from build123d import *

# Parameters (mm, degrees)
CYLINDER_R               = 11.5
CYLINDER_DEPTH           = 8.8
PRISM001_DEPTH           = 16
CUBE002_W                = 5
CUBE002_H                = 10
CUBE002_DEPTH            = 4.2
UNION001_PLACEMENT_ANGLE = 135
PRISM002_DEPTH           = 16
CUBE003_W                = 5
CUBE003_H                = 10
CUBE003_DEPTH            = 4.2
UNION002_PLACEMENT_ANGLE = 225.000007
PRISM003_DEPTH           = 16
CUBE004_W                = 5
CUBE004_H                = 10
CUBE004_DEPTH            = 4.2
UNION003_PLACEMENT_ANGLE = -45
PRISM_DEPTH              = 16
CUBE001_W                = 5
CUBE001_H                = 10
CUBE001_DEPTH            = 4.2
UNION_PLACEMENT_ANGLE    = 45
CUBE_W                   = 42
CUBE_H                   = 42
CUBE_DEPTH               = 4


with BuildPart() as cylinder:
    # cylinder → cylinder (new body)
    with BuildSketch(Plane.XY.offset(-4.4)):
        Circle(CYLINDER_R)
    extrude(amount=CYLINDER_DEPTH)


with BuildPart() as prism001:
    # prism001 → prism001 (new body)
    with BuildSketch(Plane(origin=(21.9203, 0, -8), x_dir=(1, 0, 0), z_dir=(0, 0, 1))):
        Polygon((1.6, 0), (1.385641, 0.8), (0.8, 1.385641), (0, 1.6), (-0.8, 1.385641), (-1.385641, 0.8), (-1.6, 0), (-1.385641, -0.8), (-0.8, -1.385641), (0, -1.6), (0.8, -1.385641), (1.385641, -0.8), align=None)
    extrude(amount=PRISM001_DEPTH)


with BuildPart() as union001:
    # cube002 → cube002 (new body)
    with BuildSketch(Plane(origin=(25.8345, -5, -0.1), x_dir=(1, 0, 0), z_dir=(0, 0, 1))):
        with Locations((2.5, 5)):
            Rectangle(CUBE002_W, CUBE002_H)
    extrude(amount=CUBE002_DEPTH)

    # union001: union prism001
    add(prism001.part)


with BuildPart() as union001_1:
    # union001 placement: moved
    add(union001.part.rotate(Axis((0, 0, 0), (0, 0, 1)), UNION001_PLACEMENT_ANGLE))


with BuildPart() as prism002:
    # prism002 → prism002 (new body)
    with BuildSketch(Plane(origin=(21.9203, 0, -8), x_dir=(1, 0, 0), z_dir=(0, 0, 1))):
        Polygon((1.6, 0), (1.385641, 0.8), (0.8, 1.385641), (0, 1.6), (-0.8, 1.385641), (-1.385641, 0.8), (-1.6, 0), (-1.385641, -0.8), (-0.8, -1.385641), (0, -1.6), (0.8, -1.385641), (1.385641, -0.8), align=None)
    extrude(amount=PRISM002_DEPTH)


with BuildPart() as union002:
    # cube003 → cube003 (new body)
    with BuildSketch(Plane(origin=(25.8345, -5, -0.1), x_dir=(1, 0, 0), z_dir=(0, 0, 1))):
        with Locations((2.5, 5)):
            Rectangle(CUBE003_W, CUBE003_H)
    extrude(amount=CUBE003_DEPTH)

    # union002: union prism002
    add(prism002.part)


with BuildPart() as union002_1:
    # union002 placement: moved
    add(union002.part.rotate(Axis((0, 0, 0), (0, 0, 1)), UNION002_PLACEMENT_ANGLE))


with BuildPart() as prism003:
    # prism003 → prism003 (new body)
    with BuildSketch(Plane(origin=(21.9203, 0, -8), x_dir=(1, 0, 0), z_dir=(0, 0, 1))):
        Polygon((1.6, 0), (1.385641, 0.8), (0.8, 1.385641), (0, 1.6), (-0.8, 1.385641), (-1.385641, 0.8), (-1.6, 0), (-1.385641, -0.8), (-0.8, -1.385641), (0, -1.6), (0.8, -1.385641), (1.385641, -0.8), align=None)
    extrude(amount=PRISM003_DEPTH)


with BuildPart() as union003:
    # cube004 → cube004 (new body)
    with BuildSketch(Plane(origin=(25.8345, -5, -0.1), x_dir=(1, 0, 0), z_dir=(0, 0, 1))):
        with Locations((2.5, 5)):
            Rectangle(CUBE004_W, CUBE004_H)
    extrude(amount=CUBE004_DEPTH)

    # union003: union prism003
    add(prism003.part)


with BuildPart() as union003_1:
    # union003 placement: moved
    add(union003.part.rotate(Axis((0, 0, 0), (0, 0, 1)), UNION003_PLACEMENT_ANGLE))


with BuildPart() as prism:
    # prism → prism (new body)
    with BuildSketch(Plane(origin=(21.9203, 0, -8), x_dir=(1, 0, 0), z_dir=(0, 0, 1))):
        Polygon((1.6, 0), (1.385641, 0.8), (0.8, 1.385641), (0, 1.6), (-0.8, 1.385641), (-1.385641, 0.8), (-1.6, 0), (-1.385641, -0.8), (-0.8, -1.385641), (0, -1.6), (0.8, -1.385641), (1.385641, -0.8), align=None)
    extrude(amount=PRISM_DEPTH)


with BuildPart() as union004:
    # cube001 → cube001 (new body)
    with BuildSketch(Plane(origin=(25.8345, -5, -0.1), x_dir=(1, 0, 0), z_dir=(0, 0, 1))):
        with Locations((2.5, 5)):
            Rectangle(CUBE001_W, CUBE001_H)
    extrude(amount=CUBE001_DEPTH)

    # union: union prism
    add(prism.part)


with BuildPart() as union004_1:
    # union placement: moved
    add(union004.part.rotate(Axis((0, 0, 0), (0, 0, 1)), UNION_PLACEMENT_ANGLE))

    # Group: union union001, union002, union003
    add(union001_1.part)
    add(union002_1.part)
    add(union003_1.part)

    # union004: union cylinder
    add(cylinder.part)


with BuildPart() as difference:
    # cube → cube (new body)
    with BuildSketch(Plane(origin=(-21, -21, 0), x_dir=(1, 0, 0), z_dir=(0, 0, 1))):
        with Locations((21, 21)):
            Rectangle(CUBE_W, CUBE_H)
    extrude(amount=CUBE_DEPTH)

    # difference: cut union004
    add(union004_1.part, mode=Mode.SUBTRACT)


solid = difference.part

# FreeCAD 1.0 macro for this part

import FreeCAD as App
import Part
import Sketcher

V = App.Vector

doc = App.newDocument("Part")
body = doc.addObject("PartDesign::Body", "Body")

# Sketch on XY plane
sketch1 = body.newObject("Sketcher::SketchObject", "Sketch")
sketch1.AttachmentSupport = (doc.getObject("XY_Plane"), [""])
sketch1.MapMode = "FlatFace"
sketch1.AttachmentOffset = App.Placement(V(0, 0, -4.4), App.Rotation())
sketch1.addGeometry(Part.Circle(V(0, 0, 0), V(0, 0, 1), 12), False)
sketch1.addConstraint([
    Sketcher.Constraint("Coincident", 0, 3, -1, 1),
    Sketcher.Constraint("Diameter", 0, 23.0),
])
pad1 = body.newObject("PartDesign::Pad", "Pad")
pad1.Profile = sketch1
pad1.Length = 8.8
body2 = doc.addObject("PartDesign::Body", "Body001")

# Sketch on XY plane
sketch2 = body2.newObject("Sketcher::SketchObject", "Sketch001")
sketch2.AttachmentSupport = (doc.getObject("XY_Plane001"), [""])
sketch2.MapMode = "FlatFace"
sketch2.AttachmentOffset = App.Placement(V(0, 0, -8), App.Rotation())
sketch2.addGeometry([
    Part.LineSegment(V(23.5, 0, 0), V(23.3, 0.8, 0)),  # 0
    Part.LineSegment(V(23.3, 0.8, 0), V(22.7, 1.4, 0)),  # 1
    Part.LineSegment(V(22.7, 1.4, 0), V(21.9, 1.6, 0)),  # 2
    Part.LineSegment(V(21.9, 1.6, 0), V(21.1, 1.4, 0)),  # 3
    Part.LineSegment(V(21.1, 1.4, 0), V(20.5, 0.8, 0)),  # 4
    Part.LineSegment(V(20.5, 0.8, 0), V(20.3, 0, 0)),  # 5
    Part.LineSegment(V(20.3, 0, 0), V(20.5, -0.8, 0)),  # 6
    Part.LineSegment(V(20.5, -0.8, 0), V(21.1, -1.4, 0)),  # 7
    Part.LineSegment(V(21.1, -1.4, 0), V(21.9, -1.6, 0)),  # 8
    Part.LineSegment(V(21.9, -1.6, 0), V(22.7, -1.4, 0)),  # 9
    Part.LineSegment(V(22.7, -1.4, 0), V(23.3, -0.8, 0)),  # 10
    Part.LineSegment(V(23.3, -0.8, 0), V(23.5, 0, 0)),  # 11
], False)
sketch2.addConstraint([
    Sketcher.Constraint("Coincident", 0, 2, 1, 1),
    Sketcher.Constraint("Coincident", 1, 2, 2, 1),
    Sketcher.Constraint("Coincident", 2, 2, 3, 1),
    Sketcher.Constraint("Coincident", 3, 2, 4, 1),
    Sketcher.Constraint("Coincident", 4, 2, 5, 1),
    Sketcher.Constraint("Coincident", 5, 2, 6, 1),
    Sketcher.Constraint("Coincident", 6, 2, 7, 1),
    Sketcher.Constraint("Coincident", 7, 2, 8, 1),
    Sketcher.Constraint("Coincident", 8, 2, 9, 1),
    Sketcher.Constraint("Coincident", 9, 2, 10, 1),
    Sketcher.Constraint("Coincident", 10, 2, 11, 1),
    Sketcher.Constraint("Coincident", 11, 2, 0, 1),
    Sketcher.Constraint("Symmetric", 4, 2, 6, 2, -1),
    Sketcher.Constraint("Symmetric", 3, 2, 7, 2, -1),
    Sketcher.Constraint("Symmetric", 2, 2, 8, 2, -1),
    Sketcher.Constraint("Symmetric", 1, 2, 9, 2, -1),
    Sketcher.Constraint("Symmetric", 0, 2, 10, 2, -1),
    Sketcher.Constraint("PointOnObject", 5, 2, -1),
    Sketcher.Constraint("PointOnObject", 11, 2, -1),
    Sketcher.Constraint("Perpendicular", 0, 3),
    Sketcher.Constraint("Perpendicular", 1, 4),
    Sketcher.Constraint("Perpendicular", 2, 5),
    Sketcher.Constraint("Perpendicular", 3, 6),
    Sketcher.Constraint("Perpendicular", 4, 7),
    Sketcher.Constraint("Horizontal", 1, 2, 3, 2),
    Sketcher.Constraint("Horizontal", 0, 2, 4, 2),
    Sketcher.Constraint("Equal", 0, 1),
    Sketcher.Constraint("Equal", 1, 2),
    Sketcher.Constraint("DistanceY", -1, 1, 0, 2, 0.8),
    Sketcher.Constraint("DistanceY", -1, 1, 2, 2, 1.6),
    Sketcher.Constraint("DistanceX", -1, 1, 1, 2, 22.7203),
])
pad2 = body2.newObject("PartDesign::Pad", "Pad001")
pad2.Profile = sketch2
pad2.Length = 16
body3 = doc.addObject("PartDesign::Body", "Body002")
body3.AllowCompound = True

# Sketch on XY plane
sketch3 = body3.newObject("Sketcher::SketchObject", "Sketch002")
sketch3.AttachmentSupport = (doc.getObject("XY_Plane002"), [""])
sketch3.MapMode = "FlatFace"
sketch3.AttachmentOffset = App.Placement(V(0, 0, -0.1), App.Rotation())
sketch3.addGeometry([
    Part.LineSegment(V(26, 5, 0), V(26, -5, 0)),
    Part.LineSegment(V(26, -5, 0), V(31, -5, 0)),
    Part.LineSegment(V(31, -5, 0), V(31, 5, 0)),
    Part.LineSegment(V(31, 5, 0), V(26, 5, 0)),
], False)
sketch3.addConstraint([
    Sketcher.Constraint("Coincident", 0, 2, 1, 1),
    Sketcher.Constraint("Coincident", 1, 2, 2, 1),
    Sketcher.Constraint("Coincident", 2, 2, 3, 1),
    Sketcher.Constraint("Coincident", 3, 2, 0, 1),
    Sketcher.Constraint("Vertical", 0),
    Sketcher.Constraint("Horizontal", 1),
    Sketcher.Constraint("Vertical", 2),
    Sketcher.Constraint("Horizontal", 3),
    Sketcher.Constraint("DistanceX", 1, 1, 1, 2, 5.0),
    Sketcher.Constraint("DistanceY", 0, 2, 0, 1, 10.0),
    Sketcher.Constraint("DistanceY", 0, 2, -1, 1, 5.0),
    Sketcher.Constraint("DistanceX", -1, 1, 0, 2, 25.8345),
])
pad3 = body3.newObject("PartDesign::Pad", "Pad002")
pad3.Profile = sketch3
pad3.Length = 4.2
doc.recompute()

boolean = body3.newObject("PartDesign::Boolean", "Boolean")
boolean.Type = "Fuse"
boolean.addObjects([body2])
body4 = doc.addObject("PartDesign::Body", "Body003")
body4.AllowCompound = True
doc.recompute()

body3.Placement = App.Placement(V(0, 0, 0), App.Rotation(V(0, 0, 1), 135))
boolean2 = body4.newObject("PartDesign::Boolean", "Boolean001")
boolean2.Type = "Fuse"
boolean2.addObjects([body3])
body5 = doc.addObject("PartDesign::Body", "Body004")

# Sketch on XY plane
sketch4 = body5.newObject("Sketcher::SketchObject", "Sketch003")
sketch4.AttachmentSupport = (doc.getObject("XY_Plane004"), [""])
sketch4.MapMode = "FlatFace"
sketch4.AttachmentOffset = App.Placement(V(0, 0, -8), App.Rotation())
sketch4.addGeometry([
    Part.LineSegment(V(23.5, 0, 0), V(23.3, 0.8, 0)),  # 0
    Part.LineSegment(V(23.3, 0.8, 0), V(22.7, 1.4, 0)),  # 1
    Part.LineSegment(V(22.7, 1.4, 0), V(21.9, 1.6, 0)),  # 2
    Part.LineSegment(V(21.9, 1.6, 0), V(21.1, 1.4, 0)),  # 3
    Part.LineSegment(V(21.1, 1.4, 0), V(20.5, 0.8, 0)),  # 4
    Part.LineSegment(V(20.5, 0.8, 0), V(20.3, 0, 0)),  # 5
    Part.LineSegment(V(20.3, 0, 0), V(20.5, -0.8, 0)),  # 6
    Part.LineSegment(V(20.5, -0.8, 0), V(21.1, -1.4, 0)),  # 7
    Part.LineSegment(V(21.1, -1.4, 0), V(21.9, -1.6, 0)),  # 8
    Part.LineSegment(V(21.9, -1.6, 0), V(22.7, -1.4, 0)),  # 9
    Part.LineSegment(V(22.7, -1.4, 0), V(23.3, -0.8, 0)),  # 10
    Part.LineSegment(V(23.3, -0.8, 0), V(23.5, 0, 0)),  # 11
], False)
sketch4.addConstraint([
    Sketcher.Constraint("Coincident", 0, 2, 1, 1),
    Sketcher.Constraint("Coincident", 1, 2, 2, 1),
    Sketcher.Constraint("Coincident", 2, 2, 3, 1),
    Sketcher.Constraint("Coincident", 3, 2, 4, 1),
    Sketcher.Constraint("Coincident", 4, 2, 5, 1),
    Sketcher.Constraint("Coincident", 5, 2, 6, 1),
    Sketcher.Constraint("Coincident", 6, 2, 7, 1),
    Sketcher.Constraint("Coincident", 7, 2, 8, 1),
    Sketcher.Constraint("Coincident", 8, 2, 9, 1),
    Sketcher.Constraint("Coincident", 9, 2, 10, 1),
    Sketcher.Constraint("Coincident", 10, 2, 11, 1),
    Sketcher.Constraint("Coincident", 11, 2, 0, 1),
    Sketcher.Constraint("Symmetric", 4, 2, 6, 2, -1),
    Sketcher.Constraint("Symmetric", 3, 2, 7, 2, -1),
    Sketcher.Constraint("Symmetric", 2, 2, 8, 2, -1),
    Sketcher.Constraint("Symmetric", 1, 2, 9, 2, -1),
    Sketcher.Constraint("Symmetric", 0, 2, 10, 2, -1),
    Sketcher.Constraint("PointOnObject", 5, 2, -1),
    Sketcher.Constraint("PointOnObject", 11, 2, -1),
    Sketcher.Constraint("Perpendicular", 0, 3),
    Sketcher.Constraint("Perpendicular", 1, 4),
    Sketcher.Constraint("Perpendicular", 2, 5),
    Sketcher.Constraint("Perpendicular", 3, 6),
    Sketcher.Constraint("Perpendicular", 4, 7),
    Sketcher.Constraint("Horizontal", 1, 2, 3, 2),
    Sketcher.Constraint("Horizontal", 0, 2, 4, 2),
    Sketcher.Constraint("Equal", 0, 1),
    Sketcher.Constraint("Equal", 1, 2),
    Sketcher.Constraint("DistanceY", -1, 1, 0, 2, 0.8),
    Sketcher.Constraint("DistanceY", -1, 1, 2, 2, 1.6),
    Sketcher.Constraint("DistanceX", -1, 1, 1, 2, 22.7203),
])
pad4 = body5.newObject("PartDesign::Pad", "Pad003")
pad4.Profile = sketch4
pad4.Length = 16
body6 = doc.addObject("PartDesign::Body", "Body005")
body6.AllowCompound = True

# Sketch on XY plane
sketch5 = body6.newObject("Sketcher::SketchObject", "Sketch004")
sketch5.AttachmentSupport = (doc.getObject("XY_Plane005"), [""])
sketch5.MapMode = "FlatFace"
sketch5.AttachmentOffset = App.Placement(V(0, 0, -0.1), App.Rotation())
sketch5.addGeometry([
    Part.LineSegment(V(26, 5, 0), V(26, -5, 0)),
    Part.LineSegment(V(26, -5, 0), V(31, -5, 0)),
    Part.LineSegment(V(31, -5, 0), V(31, 5, 0)),
    Part.LineSegment(V(31, 5, 0), V(26, 5, 0)),
], False)
sketch5.addConstraint([
    Sketcher.Constraint("Coincident", 0, 2, 1, 1),
    Sketcher.Constraint("Coincident", 1, 2, 2, 1),
    Sketcher.Constraint("Coincident", 2, 2, 3, 1),
    Sketcher.Constraint("Coincident", 3, 2, 0, 1),
    Sketcher.Constraint("Vertical", 0),
    Sketcher.Constraint("Horizontal", 1),
    Sketcher.Constraint("Vertical", 2),
    Sketcher.Constraint("Horizontal", 3),
    Sketcher.Constraint("DistanceX", 1, 1, 1, 2, 5.0),
    Sketcher.Constraint("DistanceY", 0, 2, 0, 1, 10.0),
    Sketcher.Constraint("DistanceY", 0, 2, -1, 1, 5.0),
    Sketcher.Constraint("DistanceX", -1, 1, 0, 2, 25.8345),
])
pad5 = body6.newObject("PartDesign::Pad", "Pad004")
pad5.Profile = sketch5
pad5.Length = 4.2
doc.recompute()

boolean3 = body6.newObject("PartDesign::Boolean", "Boolean002")
boolean3.Type = "Fuse"
boolean3.addObjects([body5])
body7 = doc.addObject("PartDesign::Body", "Body006")
body7.AllowCompound = True
doc.recompute()

body6.Placement = App.Placement(V(0, 0, 0), App.Rotation(V(0, 0, 1), 225.000007))
boolean4 = body7.newObject("PartDesign::Boolean", "Boolean003")
boolean4.Type = "Fuse"
boolean4.addObjects([body6])
body8 = doc.addObject("PartDesign::Body", "Body007")

# Sketch on XY plane
sketch6 = body8.newObject("Sketcher::SketchObject", "Sketch005")
sketch6.AttachmentSupport = (doc.getObject("XY_Plane007"), [""])
sketch6.MapMode = "FlatFace"
sketch6.AttachmentOffset = App.Placement(V(0, 0, -8), App.Rotation())
sketch6.addGeometry([
    Part.LineSegment(V(23.5, 0, 0), V(23.3, 0.8, 0)),  # 0
    Part.LineSegment(V(23.3, 0.8, 0), V(22.7, 1.4, 0)),  # 1
    Part.LineSegment(V(22.7, 1.4, 0), V(21.9, 1.6, 0)),  # 2
    Part.LineSegment(V(21.9, 1.6, 0), V(21.1, 1.4, 0)),  # 3
    Part.LineSegment(V(21.1, 1.4, 0), V(20.5, 0.8, 0)),  # 4
    Part.LineSegment(V(20.5, 0.8, 0), V(20.3, 0, 0)),  # 5
    Part.LineSegment(V(20.3, 0, 0), V(20.5, -0.8, 0)),  # 6
    Part.LineSegment(V(20.5, -0.8, 0), V(21.1, -1.4, 0)),  # 7
    Part.LineSegment(V(21.1, -1.4, 0), V(21.9, -1.6, 0)),  # 8
    Part.LineSegment(V(21.9, -1.6, 0), V(22.7, -1.4, 0)),  # 9
    Part.LineSegment(V(22.7, -1.4, 0), V(23.3, -0.8, 0)),  # 10
    Part.LineSegment(V(23.3, -0.8, 0), V(23.5, 0, 0)),  # 11
], False)
sketch6.addConstraint([
    Sketcher.Constraint("Coincident", 0, 2, 1, 1),
    Sketcher.Constraint("Coincident", 1, 2, 2, 1),
    Sketcher.Constraint("Coincident", 2, 2, 3, 1),
    Sketcher.Constraint("Coincident", 3, 2, 4, 1),
    Sketcher.Constraint("Coincident", 4, 2, 5, 1),
    Sketcher.Constraint("Coincident", 5, 2, 6, 1),
    Sketcher.Constraint("Coincident", 6, 2, 7, 1),
    Sketcher.Constraint("Coincident", 7, 2, 8, 1),
    Sketcher.Constraint("Coincident", 8, 2, 9, 1),
    Sketcher.Constraint("Coincident", 9, 2, 10, 1),
    Sketcher.Constraint("Coincident", 10, 2, 11, 1),
    Sketcher.Constraint("Coincident", 11, 2, 0, 1),
    Sketcher.Constraint("Symmetric", 4, 2, 6, 2, -1),
    Sketcher.Constraint("Symmetric", 3, 2, 7, 2, -1),
    Sketcher.Constraint("Symmetric", 2, 2, 8, 2, -1),
    Sketcher.Constraint("Symmetric", 1, 2, 9, 2, -1),
    Sketcher.Constraint("Symmetric", 0, 2, 10, 2, -1),
    Sketcher.Constraint("PointOnObject", 5, 2, -1),
    Sketcher.Constraint("PointOnObject", 11, 2, -1),
    Sketcher.Constraint("Perpendicular", 0, 3),
    Sketcher.Constraint("Perpendicular", 1, 4),
    Sketcher.Constraint("Perpendicular", 2, 5),
    Sketcher.Constraint("Perpendicular", 3, 6),
    Sketcher.Constraint("Perpendicular", 4, 7),
    Sketcher.Constraint("Horizontal", 1, 2, 3, 2),
    Sketcher.Constraint("Horizontal", 0, 2, 4, 2),
    Sketcher.Constraint("Equal", 0, 1),
    Sketcher.Constraint("Equal", 1, 2),
    Sketcher.Constraint("DistanceY", -1, 1, 0, 2, 0.8),
    Sketcher.Constraint("DistanceY", -1, 1, 2, 2, 1.6),
    Sketcher.Constraint("DistanceX", -1, 1, 1, 2, 22.7203),
])
pad6 = body8.newObject("PartDesign::Pad", "Pad005")
pad6.Profile = sketch6
pad6.Length = 16
body9 = doc.addObject("PartDesign::Body", "Body008")
body9.AllowCompound = True

# Sketch on XY plane
sketch7 = body9.newObject("Sketcher::SketchObject", "Sketch006")
sketch7.AttachmentSupport = (doc.getObject("XY_Plane008"), [""])
sketch7.MapMode = "FlatFace"
sketch7.AttachmentOffset = App.Placement(V(0, 0, -0.1), App.Rotation())
sketch7.addGeometry([
    Part.LineSegment(V(26, 5, 0), V(26, -5, 0)),
    Part.LineSegment(V(26, -5, 0), V(31, -5, 0)),
    Part.LineSegment(V(31, -5, 0), V(31, 5, 0)),
    Part.LineSegment(V(31, 5, 0), V(26, 5, 0)),
], False)
sketch7.addConstraint([
    Sketcher.Constraint("Coincident", 0, 2, 1, 1),
    Sketcher.Constraint("Coincident", 1, 2, 2, 1),
    Sketcher.Constraint("Coincident", 2, 2, 3, 1),
    Sketcher.Constraint("Coincident", 3, 2, 0, 1),
    Sketcher.Constraint("Vertical", 0),
    Sketcher.Constraint("Horizontal", 1),
    Sketcher.Constraint("Vertical", 2),
    Sketcher.Constraint("Horizontal", 3),
    Sketcher.Constraint("DistanceX", 1, 1, 1, 2, 5.0),
    Sketcher.Constraint("DistanceY", 0, 2, 0, 1, 10.0),
    Sketcher.Constraint("DistanceY", 0, 2, -1, 1, 5.0),
    Sketcher.Constraint("DistanceX", -1, 1, 0, 2, 25.8345),
])
pad7 = body9.newObject("PartDesign::Pad", "Pad006")
pad7.Profile = sketch7
pad7.Length = 4.2
doc.recompute()

boolean5 = body9.newObject("PartDesign::Boolean", "Boolean004")
boolean5.Type = "Fuse"
boolean5.addObjects([body8])
body10 = doc.addObject("PartDesign::Body", "Body009")
body10.AllowCompound = True
doc.recompute()

body9.Placement = App.Placement(V(0, 0, 0), App.Rotation(V(0, 0, 1), 315))
boolean6 = body10.newObject("PartDesign::Boolean", "Boolean005")
boolean6.Type = "Fuse"
boolean6.addObjects([body9])
body11 = doc.addObject("PartDesign::Body", "Body010")

# Sketch on XY plane
sketch8 = body11.newObject("Sketcher::SketchObject", "Sketch007")
sketch8.AttachmentSupport = (doc.getObject("XY_Plane010"), [""])
sketch8.MapMode = "FlatFace"
sketch8.AttachmentOffset = App.Placement(V(0, 0, -8), App.Rotation())
sketch8.addGeometry([
    Part.LineSegment(V(23.5, 0, 0), V(23.3, 0.8, 0)),  # 0
    Part.LineSegment(V(23.3, 0.8, 0), V(22.7, 1.4, 0)),  # 1
    Part.LineSegment(V(22.7, 1.4, 0), V(21.9, 1.6, 0)),  # 2
    Part.LineSegment(V(21.9, 1.6, 0), V(21.1, 1.4, 0)),  # 3
    Part.LineSegment(V(21.1, 1.4, 0), V(20.5, 0.8, 0)),  # 4
    Part.LineSegment(V(20.5, 0.8, 0), V(20.3, 0, 0)),  # 5
    Part.LineSegment(V(20.3, 0, 0), V(20.5, -0.8, 0)),  # 6
    Part.LineSegment(V(20.5, -0.8, 0), V(21.1, -1.4, 0)),  # 7
    Part.LineSegment(V(21.1, -1.4, 0), V(21.9, -1.6, 0)),  # 8
    Part.LineSegment(V(21.9, -1.6, 0), V(22.7, -1.4, 0)),  # 9
    Part.LineSegment(V(22.7, -1.4, 0), V(23.3, -0.8, 0)),  # 10
    Part.LineSegment(V(23.3, -0.8, 0), V(23.5, 0, 0)),  # 11
], False)
sketch8.addConstraint([
    Sketcher.Constraint("Coincident", 0, 2, 1, 1),
    Sketcher.Constraint("Coincident", 1, 2, 2, 1),
    Sketcher.Constraint("Coincident", 2, 2, 3, 1),
    Sketcher.Constraint("Coincident", 3, 2, 4, 1),
    Sketcher.Constraint("Coincident", 4, 2, 5, 1),
    Sketcher.Constraint("Coincident", 5, 2, 6, 1),
    Sketcher.Constraint("Coincident", 6, 2, 7, 1),
    Sketcher.Constraint("Coincident", 7, 2, 8, 1),
    Sketcher.Constraint("Coincident", 8, 2, 9, 1),
    Sketcher.Constraint("Coincident", 9, 2, 10, 1),
    Sketcher.Constraint("Coincident", 10, 2, 11, 1),
    Sketcher.Constraint("Coincident", 11, 2, 0, 1),
    Sketcher.Constraint("Symmetric", 4, 2, 6, 2, -1),
    Sketcher.Constraint("Symmetric", 3, 2, 7, 2, -1),
    Sketcher.Constraint("Symmetric", 2, 2, 8, 2, -1),
    Sketcher.Constraint("Symmetric", 1, 2, 9, 2, -1),
    Sketcher.Constraint("Symmetric", 0, 2, 10, 2, -1),
    Sketcher.Constraint("PointOnObject", 5, 2, -1),
    Sketcher.Constraint("PointOnObject", 11, 2, -1),
    Sketcher.Constraint("Perpendicular", 0, 3),
    Sketcher.Constraint("Perpendicular", 1, 4),
    Sketcher.Constraint("Perpendicular", 2, 5),
    Sketcher.Constraint("Perpendicular", 3, 6),
    Sketcher.Constraint("Perpendicular", 4, 7),
    Sketcher.Constraint("Horizontal", 1, 2, 3, 2),
    Sketcher.Constraint("Horizontal", 0, 2, 4, 2),
    Sketcher.Constraint("Equal", 0, 1),
    Sketcher.Constraint("Equal", 1, 2),
    Sketcher.Constraint("DistanceY", -1, 1, 0, 2, 0.8),
    Sketcher.Constraint("DistanceY", -1, 1, 2, 2, 1.6),
    Sketcher.Constraint("DistanceX", -1, 1, 1, 2, 22.7203),
])
pad8 = body11.newObject("PartDesign::Pad", "Pad007")
pad8.Profile = sketch8
pad8.Length = 16
body12 = doc.addObject("PartDesign::Body", "Body011")
body12.AllowCompound = True

# Sketch on XY plane
sketch9 = body12.newObject("Sketcher::SketchObject", "Sketch008")
sketch9.AttachmentSupport = (doc.getObject("XY_Plane011"), [""])
sketch9.MapMode = "FlatFace"
sketch9.AttachmentOffset = App.Placement(V(0, 0, -0.1), App.Rotation())
sketch9.addGeometry([
    Part.LineSegment(V(26, 5, 0), V(26, -5, 0)),
    Part.LineSegment(V(26, -5, 0), V(31, -5, 0)),
    Part.LineSegment(V(31, -5, 0), V(31, 5, 0)),
    Part.LineSegment(V(31, 5, 0), V(26, 5, 0)),
], False)
sketch9.addConstraint([
    Sketcher.Constraint("Coincident", 0, 2, 1, 1),
    Sketcher.Constraint("Coincident", 1, 2, 2, 1),
    Sketcher.Constraint("Coincident", 2, 2, 3, 1),
    Sketcher.Constraint("Coincident", 3, 2, 0, 1),
    Sketcher.Constraint("Vertical", 0),
    Sketcher.Constraint("Horizontal", 1),
    Sketcher.Constraint("Vertical", 2),
    Sketcher.Constraint("Horizontal", 3),
    Sketcher.Constraint("DistanceX", 1, 1, 1, 2, 5.0),
    Sketcher.Constraint("DistanceY", 0, 2, 0, 1, 10.0),
    Sketcher.Constraint("DistanceY", 0, 2, -1, 1, 5.0),
    Sketcher.Constraint("DistanceX", -1, 1, 0, 2, 25.8345),
])
pad9 = body12.newObject("PartDesign::Pad", "Pad008")
pad9.Profile = sketch9
pad9.Length = 4.2
doc.recompute()

boolean7 = body12.newObject("PartDesign::Boolean", "Boolean006")
boolean7.Type = "Fuse"
boolean7.addObjects([body11])
body13 = doc.addObject("PartDesign::Body", "Body012")
body13.AllowCompound = True
doc.recompute()

body12.Placement = App.Placement(V(0, 0, 0), App.Rotation(V(0, 0, 1), 45))
boolean8 = body13.newObject("PartDesign::Boolean", "Boolean007")
boolean8.Type = "Fuse"
boolean8.addObjects([body12])
doc.recompute()

boolean9 = body13.newObject("PartDesign::Boolean", "Boolean008")
boolean9.Type = "Fuse"
boolean9.addObjects([body4])
doc.recompute()

boolean10 = body13.newObject("PartDesign::Boolean", "Boolean009")
boolean10.Type = "Fuse"
boolean10.addObjects([body7])
doc.recompute()

boolean11 = body13.newObject("PartDesign::Boolean", "Boolean010")
boolean11.Type = "Fuse"
boolean11.addObjects([body10])
doc.recompute()

boolean12 = body13.newObject("PartDesign::Boolean", "Boolean011")
boolean12.Type = "Fuse"
boolean12.addObjects([body])
body14 = doc.addObject("PartDesign::Body", "Body013")

# Sketch on XY plane
sketch10 = body14.newObject("Sketcher::SketchObject", "Sketch009")
sketch10.AttachmentSupport = (doc.getObject("XY_Plane013"), [""])
sketch10.MapMode = "FlatFace"
sketch10.addGeometry([
    Part.LineSegment(V(-21, 21, 0), V(-21, -21, 0)),
    Part.LineSegment(V(-21, -21, 0), V(21, -21, 0)),
    Part.LineSegment(V(21, -21, 0), V(21, 21, 0)),
    Part.LineSegment(V(21, 21, 0), V(-21, 21, 0)),
], False)
sketch10.addConstraint([
    Sketcher.Constraint("Coincident", 0, 2, 1, 1),
    Sketcher.Constraint("Coincident", 1, 2, 2, 1),
    Sketcher.Constraint("Coincident", 2, 2, 3, 1),
    Sketcher.Constraint("Coincident", 3, 2, 0, 1),
    Sketcher.Constraint("Vertical", 0),
    Sketcher.Constraint("Horizontal", 1),
    Sketcher.Constraint("Vertical", 2),
    Sketcher.Constraint("Horizontal", 3),
    Sketcher.Constraint("Symmetric", 0, 2, 2, 2, -1, 1),
    Sketcher.Constraint("Equal", 3, 0),
    Sketcher.Constraint("DistanceX", 1, 1, 1, 2, 42.0),
])
pad10 = body14.newObject("PartDesign::Pad", "Pad009")
pad10.Profile = sketch10
pad10.Length = 4
doc.recompute()

boolean13 = body14.newObject("PartDesign::Boolean", "Boolean012")
boolean13.Type = "Cut"
boolean13.addObjects([body13])

doc.recompute()
